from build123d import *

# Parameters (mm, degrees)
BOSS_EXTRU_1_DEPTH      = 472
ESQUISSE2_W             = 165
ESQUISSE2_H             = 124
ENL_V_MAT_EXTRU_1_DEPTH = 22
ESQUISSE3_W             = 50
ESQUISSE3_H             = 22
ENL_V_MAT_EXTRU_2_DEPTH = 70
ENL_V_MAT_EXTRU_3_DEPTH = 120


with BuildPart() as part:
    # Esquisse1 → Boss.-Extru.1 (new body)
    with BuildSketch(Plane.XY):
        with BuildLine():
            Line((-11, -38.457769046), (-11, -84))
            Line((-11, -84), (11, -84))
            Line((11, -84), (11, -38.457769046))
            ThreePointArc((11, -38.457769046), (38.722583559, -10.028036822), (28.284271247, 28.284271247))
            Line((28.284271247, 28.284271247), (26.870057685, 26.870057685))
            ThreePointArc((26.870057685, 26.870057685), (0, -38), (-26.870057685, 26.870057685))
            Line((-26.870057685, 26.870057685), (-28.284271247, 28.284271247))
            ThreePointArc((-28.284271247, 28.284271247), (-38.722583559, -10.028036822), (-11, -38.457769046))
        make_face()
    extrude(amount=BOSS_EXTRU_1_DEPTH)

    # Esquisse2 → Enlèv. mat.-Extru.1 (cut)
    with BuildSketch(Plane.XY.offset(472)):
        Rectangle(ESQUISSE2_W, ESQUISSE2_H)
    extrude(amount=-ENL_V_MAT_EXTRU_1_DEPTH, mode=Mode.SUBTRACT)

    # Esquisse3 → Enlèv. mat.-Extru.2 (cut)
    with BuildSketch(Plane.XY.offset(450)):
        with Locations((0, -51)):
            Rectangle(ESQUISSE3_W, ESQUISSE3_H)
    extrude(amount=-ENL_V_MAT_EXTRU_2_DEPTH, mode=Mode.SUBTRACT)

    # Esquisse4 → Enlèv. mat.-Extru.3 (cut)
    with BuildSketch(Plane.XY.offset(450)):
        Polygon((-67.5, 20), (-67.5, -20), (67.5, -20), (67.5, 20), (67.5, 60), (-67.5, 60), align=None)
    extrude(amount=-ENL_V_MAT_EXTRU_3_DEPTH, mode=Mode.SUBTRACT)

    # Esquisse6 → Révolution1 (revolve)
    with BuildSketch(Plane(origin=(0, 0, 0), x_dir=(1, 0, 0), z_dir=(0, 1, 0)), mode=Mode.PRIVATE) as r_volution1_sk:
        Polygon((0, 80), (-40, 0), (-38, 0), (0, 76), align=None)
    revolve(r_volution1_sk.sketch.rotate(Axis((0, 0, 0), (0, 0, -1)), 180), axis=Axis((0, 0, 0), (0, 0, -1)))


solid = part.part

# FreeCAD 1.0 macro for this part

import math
import FreeCAD as App
import Part
import Sketcher
from FreeCAD import Vector
Q = App.Units.Quantity

doc = App.newDocument("Part")
params = doc.addObject("Spreadsheet::Sheet", "Params")
for row, (alias, value) in enumerate([
    ("sketch1_radius", "40 mm"),
    ("sketch1_radius2", "38 mm"),
    ("sketch1_width", "22 mm"),
    ("pad1_length", "472 mm"),
    ("sketch2_width", "165 mm"),
    ("sketch2_height", "124 mm"),
    ("pocket1_length", "22 mm"),
    ("sketch3_width", "50 mm"),
    ("sketch3_height", "22 mm"),
    ("pocket2_length", "70 mm"),
    ("sketch4_width", "135 mm"),
    ("sketch4_height", "80 mm"),
    ("pocket3_length", "120 mm"),
    ("sketch5_width", "2 mm"),
    ("sketch5_height", "4 mm"),
    ("revolution_angle", "360 deg"),
], start=1):
    params.set(f"A{row}", alias)
    params.set(f"B{row}", "=" + value)
    params.setAlias(f"B{row}", alias)

body = doc.addObject("PartDesign::Body", "Body")

sketch1 = body.newObject("Sketcher::SketchObject", "Sketch")
sketch1.AttachmentSupport = (doc.getObject("XY_Plane"), [""])
sketch1.MapMode = "FlatFace"
sketch1.addGeometry([
    Part.LineSegment(Vector(-11, -38.5, 0), Vector(-11, -84, 0)),
    Part.LineSegment(Vector(-11, -84, 0), Vector(11, -84, 0)),
    Part.LineSegment(Vector(11, -84, 0), Vector(11, -38.5, 0)),
    Part.ArcOfCircle(Part.Circle(Vector(0, 0, 0), Vector(0, 0, 1), 40), math.radians(-74), math.radians(45)),
    Part.LineSegment(Vector(28.3, 28.3, 0), Vector(26.9, 26.9, 0)),
    Part.ArcOfCircle(Part.Circle(Vector(0, 0, 0), Vector(0, 0, 1), 38), math.radians(135), math.radians(405)),
    Part.LineSegment(Vector(-26.9, 26.9, 0), Vector(-28.3, 28.3, 0)),
    Part.ArcOfCircle(Part.Circle(Vector(0, 0, 0), Vector(0, 0, 1), 40), math.radians(135), math.radians(254)),
], False)
sketch1.addConstraint([
    Sketcher.Constraint("Coincident", 0, 2, 1, 1),
    Sketcher.Constraint("Coincident", 1, 2, 2, 1),
    Sketcher.Constraint("Coincident", 2, 2, 3, 1),
    Sketcher.Constraint("Coincident", 3, 2, 4, 1),
    Sketcher.Constraint("Coincident", 4, 2, 5, 2),
    Sketcher.Constraint("Coincident", 5, 1, 6, 1),
    Sketcher.Constraint("Coincident", 6, 2, 7, 1),
    Sketcher.Constraint("Coincident", 7, 2, 0, 1),
    Sketcher.Constraint("Vertical", 0),
    Sketcher.Constraint("Horizontal", 1),
    Sketcher.Constraint("Vertical", 2),
    Sketcher.Constraint("Coincident", 3, 3, -1, 1),
    Sketcher.Constraint("Coincident", 5, 3, -1, 1),
    Sketcher.Constraint("Coincident", 7, 3, -1, 1),
    Sketcher.Constraint("Equal", 3, 7),
    Sketcher.Constraint("Perpendicular", 4, 6),
    Sketcher.Constraint("Horizontal", 4, 2, 5, 1),
    Sketcher.Constraint("Horizontal", 3, 2, 6, 2),
    Sketcher.Constraint("Horizontal", 2, 2, 7, 2),
    Sketcher.Constraint("Radius", 3, Q("40 mm")),
    Sketcher.Constraint("Radius", 5, Q("38 mm")),
    Sketcher.Constraint("DistanceX", 1, 1, 1, 2, Q("22 mm")),
    Sketcher.Constraint("DistanceY", 0, 2, -1, 1, Q("84 mm")),
    Sketcher.Constraint("DistanceX", -1, 1, 3, 2, Q("28.284271 mm")),
])
sketch1.setExpression("Constraints[19]", "Params.sketch1_radius")
sketch1.setExpression("Constraints[20]", "Params.sketch1_radius2")
sketch1.setExpression("Constraints[21]", "Params.sketch1_width")
pad1 = body.newObject("PartDesign::Pad", "Pad")
pad1.Profile = sketch1
pad1.setExpression("Length", "Params.pad1_length")

sketch2 = body.newObject("Sketcher::SketchObject", "Sketch001")
sketch2.AttachmentSupport = (doc.getObject("XY_Plane"), [""])
sketch2.MapMode = "FlatFace"
sketch2.AttachmentOffset = App.Placement(Vector(0, 0, 472), App.Rotation())
sketch2.addGeometry([
    Part.LineSegment(Vector(-82, 62, 0), Vector(-82, -62, 0)),
    Part.LineSegment(Vector(-82, -62, 0), Vector(82, -62, 0)),
    Part.LineSegment(Vector(82, -62, 0), Vector(82, 62, 0)),
    Part.LineSegment(Vector(82, 62, 0), Vector(-82, 62, 0)),
], False)
sketch2.addConstraint([
    Sketcher.Constraint("Coincident", 0, 2, 1, 1),
    Sketcher.Constraint("Coincident", 1, 2, 2, 1),
    Sketcher.Constraint("Coincident", 2, 2, 3, 1),
    Sketcher.Constraint("Coincident", 3, 2, 0, 1),
    Sketcher.Constraint("Vertical", 0),
    Sketcher.Constraint("Horizontal", 1),
    Sketcher.Constraint("Vertical", 2),
    Sketcher.Constraint("Horizontal", 3),
    Sketcher.Constraint("Symmetric", 0, 2, 2, 2, -1, 1),
    Sketcher.Constraint("DistanceX", 1, 1, 1, 2, Q("165 mm")),
    Sketcher.Constraint("DistanceY", 0, 2, 0, 1, Q("124 mm")),
])
sketch2.setExpression("Constraints[9]", "Params.sketch2_width")
sketch2.setExpression("Constraints[10]", "Params.sketch2_height")
pocket1 = body.newObject("PartDesign::Pocket", "Pocket")
pocket1.Profile = sketch2
pocket1.setExpression("Length", "Params.pocket1_length")

sketch3 = body.newObject("Sketcher::SketchObject", "Sketch002")
sketch3.AttachmentSupport = (doc.getObject("XY_Plane"), [""])
sketch3.MapMode = "FlatFace"
sketch3.AttachmentOffset = App.Placement(Vector(0, 0, 450), App.Rotation())
sketch3.addGeometry([
    Part.LineSegment(Vector(-25, -40, 0), Vector(-25, -62, 0)),
    Part.LineSegment(Vector(-25, -62, 0), Vector(25, -62, 0)),
    Part.LineSegment(Vector(25, -62, 0), Vector(25, -40, 0)),
    Part.LineSegment(Vector(25, -40, 0), Vector(-25, -40, 0)),
], False)
sketch3.addConstraint([
    Sketcher.Constraint("Coincident", 0, 2, 1, 1),
    Sketcher.Constraint("Coincident", 1, 2, 2, 1),
    Sketcher.Constraint("Coincident", 2, 2, 3, 1),
    Sketcher.Constraint("Coincident", 3, 2, 0, 1),
    Sketcher.Constraint("Vertical", 0),
    Sketcher.Constraint("Horizontal", 1),
    Sketcher.Constraint("Vertical", 2),
    Sketcher.Constraint("Horizontal", 3),
    Sketcher.Constraint("DistanceX", 1, 1, 1, 2, Q("50 mm")),
    Sketcher.Constraint("DistanceY", 0, 2, 0, 1, Q("22 mm")),
    Sketcher.Constraint("DistanceX", 0, 2, -1, 1, Q("25 mm")),
    Sketcher.Constraint("DistanceY", 0, 2, -1, 1, Q("62 mm")),
])
sketch3.setExpression("Constraints[8]", "Params.sketch3_width")
sketch3.setExpression("Constraints[9]", "Params.sketch3_height")
pocket2 = body.newObject("PartDesign::Pocket", "Pocket001")
pocket2.Profile = sketch3
pocket2.setExpression("Length", "Params.pocket2_length")

sketch4 = body.newObject("Sketcher::SketchObject", "Sketch003")
sketch4.AttachmentSupport = (doc.getObject("XY_Plane"), [""])
sketch4.MapMode = "FlatFace"
sketch4.AttachmentOffset = App.Placement(Vector(0, 0, 450), App.Rotation())
sketch4.addGeometry([
    Part.LineSegment(Vector(-68, -20, 0), Vector(68, -20, 0)),
    Part.LineSegment(Vector(68, -20, 0), Vector(68, 60, 0)),
    Part.LineSegment(Vector(68, 60, 0), Vector(-68, 60, 0)),
    Part.LineSegment(Vector(-68, 60, 0), Vector(-68, -20, 0)),
], False)
sketch4.addConstraint([
    Sketcher.Constraint("Coincident", 0, 2, 1, 1),
    Sketcher.Constraint("Coincident", 1, 2, 2, 1),
    Sketcher.Constraint("Coincident", 2, 2, 3, 1),
    Sketcher.Constraint("Coincident", 3, 2, 0, 1),
    Sketcher.Constraint("Horizontal", 0),
    Sketcher.Constraint("Vertical", 1),
    Sketcher.Constraint("Horizontal", 2),
    Sketcher.Constraint("Vertical", 3),
    Sketcher.Constraint("DistanceX", 0, 1, 0, 2, Q("135 mm")),
    Sketcher.Constraint("DistanceY", 1, 1, 1, 2, Q("80 mm")),
    Sketcher.Constraint("DistanceY", 0, 2, -1, 1, Q("20 mm")),
    Sketcher.Constraint("DistanceX", -1, 1, 0, 2, Q("67.5 mm")),
])
sketch4.setExpression("Constraints[8]", "Params.sketch4_width")
sketch4.setExpression("Constraints[9]", "Params.sketch4_height")
pocket3 = body.newObject("PartDesign::Pocket", "Pocket002")
pocket3.Profile = sketch4
pocket3.setExpression("Length", "Params.pocket3_length")

sketch5 = body.newObject("Sketcher::SketchObject", "Sketch004")
sketch5.AttachmentSupport = (doc.getObject("XZ_Plane"), [""])
sketch5.MapMode = "FlatFace"
sketch5.addGeometry([
    Part.LineSegment(Vector(0, -80, 0), Vector(-40, 0, 0)),
    Part.LineSegment(Vector(-40, 0, 0), Vector(-38, 0, 0)),
    Part.LineSegment(Vector(-38, 0, 0), Vector(0, -76, 0)),
    Part.LineSegment(Vector(0, -76, 0), Vector(0, -80, 0)),
], False)
sketch5.addConstraint([
    Sketcher.Constraint("Coincident", 0, 2, 1, 1),
    Sketcher.Constraint("Coincident", 1, 2, 2, 1),
    Sketcher.Constraint("Coincident", 2, 2, 3, 1),
    Sketcher.Constraint("Coincident", 3, 2, 0, 1),
    Sketcher.Constraint("Horizontal", 1),
    Sketcher.Constraint("Vertical", 3),
    Sketcher.Constraint("PointOnObject", 0, 2, -1),
    Sketcher.Constraint("PointOnObject", 2, 2, -2),
    Sketcher.Constraint("Parallel", 0, 2),
    Sketcher.Constraint("DistanceX", 1, 1, 1, 2, Q("2 mm")),
    Sketcher.Constraint("DistanceY", 3, 2, 3, 1, Q("4 mm")),
    Sketcher.Constraint("DistanceX", 0, 2, -1, 1, Q("40 mm")),
])
sketch5.setExpression("Constraints[9]", "Params.sketch5_width")
sketch5.setExpression("Constraints[10]", "Params.sketch5_height")
revolution = body.newObject("PartDesign::Revolution", "Revolution")
revolution.Profile = sketch5
revolution.ReferenceAxis = (sketch5, ["V_Axis"])
revolution.setExpression("Angle", "Params.revolution_angle")

doc.recompute()
